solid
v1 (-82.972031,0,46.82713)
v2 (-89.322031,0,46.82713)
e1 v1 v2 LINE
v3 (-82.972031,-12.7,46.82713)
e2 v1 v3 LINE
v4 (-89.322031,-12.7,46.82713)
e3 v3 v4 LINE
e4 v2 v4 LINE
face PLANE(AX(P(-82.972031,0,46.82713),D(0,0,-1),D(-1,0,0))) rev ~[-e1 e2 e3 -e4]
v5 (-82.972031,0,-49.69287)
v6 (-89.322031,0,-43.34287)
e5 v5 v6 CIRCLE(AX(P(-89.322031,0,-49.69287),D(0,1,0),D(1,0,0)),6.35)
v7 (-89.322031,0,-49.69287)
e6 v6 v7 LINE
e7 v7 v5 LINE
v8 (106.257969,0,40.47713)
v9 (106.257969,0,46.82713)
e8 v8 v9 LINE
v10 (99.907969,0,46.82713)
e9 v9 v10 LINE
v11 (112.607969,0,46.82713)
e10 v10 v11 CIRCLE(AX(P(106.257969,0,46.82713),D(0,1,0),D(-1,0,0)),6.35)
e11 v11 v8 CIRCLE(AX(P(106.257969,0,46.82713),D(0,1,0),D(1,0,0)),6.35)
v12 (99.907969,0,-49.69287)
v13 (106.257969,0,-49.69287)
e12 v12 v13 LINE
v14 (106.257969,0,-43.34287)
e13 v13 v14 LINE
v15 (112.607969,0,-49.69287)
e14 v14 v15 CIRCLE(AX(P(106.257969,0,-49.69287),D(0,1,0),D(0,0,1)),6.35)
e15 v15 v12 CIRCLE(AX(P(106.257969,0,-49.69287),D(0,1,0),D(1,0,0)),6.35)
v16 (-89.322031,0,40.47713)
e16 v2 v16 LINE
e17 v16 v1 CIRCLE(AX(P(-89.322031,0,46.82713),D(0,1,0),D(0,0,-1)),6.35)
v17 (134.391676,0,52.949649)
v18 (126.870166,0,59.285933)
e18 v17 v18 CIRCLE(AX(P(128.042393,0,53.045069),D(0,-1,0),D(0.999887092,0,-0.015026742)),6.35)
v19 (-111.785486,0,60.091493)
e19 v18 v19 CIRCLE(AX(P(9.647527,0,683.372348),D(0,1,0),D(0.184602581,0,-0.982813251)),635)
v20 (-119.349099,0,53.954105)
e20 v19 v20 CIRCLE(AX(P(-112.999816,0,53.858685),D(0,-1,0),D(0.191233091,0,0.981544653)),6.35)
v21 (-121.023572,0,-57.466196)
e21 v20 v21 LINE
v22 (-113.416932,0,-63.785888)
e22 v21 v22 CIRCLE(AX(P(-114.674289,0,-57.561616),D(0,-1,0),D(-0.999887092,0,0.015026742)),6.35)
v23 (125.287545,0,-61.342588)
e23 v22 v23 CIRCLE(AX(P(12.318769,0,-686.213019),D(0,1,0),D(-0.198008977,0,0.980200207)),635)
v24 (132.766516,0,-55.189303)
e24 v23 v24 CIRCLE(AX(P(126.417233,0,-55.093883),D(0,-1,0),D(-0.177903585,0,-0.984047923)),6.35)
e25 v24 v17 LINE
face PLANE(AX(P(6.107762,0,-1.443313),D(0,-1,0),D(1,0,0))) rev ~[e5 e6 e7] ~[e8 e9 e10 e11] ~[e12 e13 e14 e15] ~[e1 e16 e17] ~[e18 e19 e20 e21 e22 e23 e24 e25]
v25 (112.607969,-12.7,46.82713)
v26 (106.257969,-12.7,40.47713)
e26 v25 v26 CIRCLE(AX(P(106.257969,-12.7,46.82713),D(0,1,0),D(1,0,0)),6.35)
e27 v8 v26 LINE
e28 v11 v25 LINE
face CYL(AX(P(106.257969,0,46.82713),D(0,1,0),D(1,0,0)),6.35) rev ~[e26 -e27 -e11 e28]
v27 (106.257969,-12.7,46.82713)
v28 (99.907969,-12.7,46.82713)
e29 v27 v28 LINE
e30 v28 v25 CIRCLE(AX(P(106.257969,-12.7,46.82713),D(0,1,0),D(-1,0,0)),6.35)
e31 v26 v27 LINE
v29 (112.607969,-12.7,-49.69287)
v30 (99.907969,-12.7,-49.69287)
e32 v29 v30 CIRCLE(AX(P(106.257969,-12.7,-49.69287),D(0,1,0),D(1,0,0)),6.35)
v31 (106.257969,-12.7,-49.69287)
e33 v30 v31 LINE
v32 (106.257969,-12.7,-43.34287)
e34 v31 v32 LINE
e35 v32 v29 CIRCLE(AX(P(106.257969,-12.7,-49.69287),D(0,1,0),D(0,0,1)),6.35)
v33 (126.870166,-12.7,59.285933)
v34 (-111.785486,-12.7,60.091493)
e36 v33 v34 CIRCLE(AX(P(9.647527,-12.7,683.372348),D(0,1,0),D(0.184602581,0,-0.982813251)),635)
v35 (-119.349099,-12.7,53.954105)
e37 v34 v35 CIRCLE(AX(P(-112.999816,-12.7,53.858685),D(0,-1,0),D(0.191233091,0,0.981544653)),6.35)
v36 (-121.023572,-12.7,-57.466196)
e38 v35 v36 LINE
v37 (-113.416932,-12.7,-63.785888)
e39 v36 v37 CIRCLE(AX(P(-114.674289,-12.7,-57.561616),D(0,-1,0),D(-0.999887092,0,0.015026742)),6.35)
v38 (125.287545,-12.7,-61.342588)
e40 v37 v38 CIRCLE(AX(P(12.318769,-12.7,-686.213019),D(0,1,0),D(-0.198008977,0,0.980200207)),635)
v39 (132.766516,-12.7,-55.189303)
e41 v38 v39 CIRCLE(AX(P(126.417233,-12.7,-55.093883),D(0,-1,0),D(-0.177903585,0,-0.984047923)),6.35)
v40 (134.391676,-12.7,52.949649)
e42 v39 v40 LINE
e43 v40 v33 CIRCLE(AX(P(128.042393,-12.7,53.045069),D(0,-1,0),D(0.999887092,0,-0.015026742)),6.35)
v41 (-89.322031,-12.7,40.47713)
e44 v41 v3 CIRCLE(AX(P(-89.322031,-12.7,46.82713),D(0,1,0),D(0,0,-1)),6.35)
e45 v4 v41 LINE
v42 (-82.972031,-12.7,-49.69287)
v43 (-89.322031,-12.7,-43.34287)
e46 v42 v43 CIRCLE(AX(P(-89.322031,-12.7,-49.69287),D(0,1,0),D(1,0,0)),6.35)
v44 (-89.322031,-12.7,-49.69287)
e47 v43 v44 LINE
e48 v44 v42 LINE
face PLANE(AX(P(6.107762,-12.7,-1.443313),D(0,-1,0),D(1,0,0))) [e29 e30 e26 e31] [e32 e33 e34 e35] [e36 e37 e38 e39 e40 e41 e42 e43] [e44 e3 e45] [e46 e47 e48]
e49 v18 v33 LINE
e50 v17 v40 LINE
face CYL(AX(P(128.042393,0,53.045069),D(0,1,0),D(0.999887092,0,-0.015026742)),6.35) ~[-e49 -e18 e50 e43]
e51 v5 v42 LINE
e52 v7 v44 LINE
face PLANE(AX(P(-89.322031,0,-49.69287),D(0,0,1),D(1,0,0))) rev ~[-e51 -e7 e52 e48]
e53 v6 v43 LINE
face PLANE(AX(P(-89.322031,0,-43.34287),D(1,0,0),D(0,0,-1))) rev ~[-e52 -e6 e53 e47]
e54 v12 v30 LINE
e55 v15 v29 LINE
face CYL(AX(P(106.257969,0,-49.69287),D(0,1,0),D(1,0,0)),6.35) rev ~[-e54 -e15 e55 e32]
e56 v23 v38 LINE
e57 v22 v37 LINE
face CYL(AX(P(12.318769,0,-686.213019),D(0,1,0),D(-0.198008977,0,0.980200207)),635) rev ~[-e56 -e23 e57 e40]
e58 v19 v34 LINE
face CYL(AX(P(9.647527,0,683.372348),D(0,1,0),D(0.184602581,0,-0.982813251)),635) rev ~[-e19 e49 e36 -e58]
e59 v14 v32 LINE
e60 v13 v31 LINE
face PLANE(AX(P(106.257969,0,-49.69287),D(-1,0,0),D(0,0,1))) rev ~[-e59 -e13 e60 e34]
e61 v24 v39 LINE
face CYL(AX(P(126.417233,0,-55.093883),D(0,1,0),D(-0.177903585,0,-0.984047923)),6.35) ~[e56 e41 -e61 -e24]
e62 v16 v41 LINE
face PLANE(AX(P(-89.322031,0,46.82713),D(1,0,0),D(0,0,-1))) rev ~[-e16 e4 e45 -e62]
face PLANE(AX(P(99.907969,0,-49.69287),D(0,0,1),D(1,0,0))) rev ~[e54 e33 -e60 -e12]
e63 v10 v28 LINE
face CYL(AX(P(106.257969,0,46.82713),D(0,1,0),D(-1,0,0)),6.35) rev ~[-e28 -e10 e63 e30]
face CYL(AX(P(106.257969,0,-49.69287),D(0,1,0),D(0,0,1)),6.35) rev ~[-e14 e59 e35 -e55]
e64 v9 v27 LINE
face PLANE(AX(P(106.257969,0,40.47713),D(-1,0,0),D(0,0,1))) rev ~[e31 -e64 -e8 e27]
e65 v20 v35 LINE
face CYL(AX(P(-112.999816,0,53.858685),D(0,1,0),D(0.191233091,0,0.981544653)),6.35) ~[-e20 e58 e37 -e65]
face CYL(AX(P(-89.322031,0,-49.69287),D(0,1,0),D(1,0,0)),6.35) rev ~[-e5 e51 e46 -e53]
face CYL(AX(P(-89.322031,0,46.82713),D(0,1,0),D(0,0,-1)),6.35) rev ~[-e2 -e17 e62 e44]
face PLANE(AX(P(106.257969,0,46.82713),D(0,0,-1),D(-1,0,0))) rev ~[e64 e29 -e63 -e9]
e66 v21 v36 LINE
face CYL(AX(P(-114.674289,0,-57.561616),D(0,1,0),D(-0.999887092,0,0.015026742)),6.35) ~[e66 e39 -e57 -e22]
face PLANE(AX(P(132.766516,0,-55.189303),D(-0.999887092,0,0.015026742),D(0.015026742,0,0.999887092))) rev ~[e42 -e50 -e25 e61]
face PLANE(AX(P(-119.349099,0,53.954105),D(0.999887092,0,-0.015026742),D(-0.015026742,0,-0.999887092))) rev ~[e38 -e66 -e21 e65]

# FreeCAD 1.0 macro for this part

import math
import FreeCAD as App
import Part
import Sketcher
Q = App.Units.Quantity

doc = App.newDocument("Part")
body = doc.addObject("PartDesign::Body", "Body")

# Sketch on XZ plane
sketch1 = body.newObject("Sketcher::SketchObject", "Sketch")
sketch1.AttachmentSupport = (doc.getObject("XZ_Plane"), [""])
sketch1.MapMode = "FlatFace"
sketch1.addGeometry(Part.ArcOfCircle(Part.Circle(App.Vector(-112.999816, 53.858685, 0), App.Vector(0, 0, 1), 6.35), math.radians(78.975245), math.radians(179.138999)), False)
sketch1.addGeometry(Part.LineSegment(App.Vector(-119.349099, 53.954105, 0), App.Vector(-121.023572, -57.466196, 0)), False)
sketch1.addGeometry(Part.ArcOfCircle(Part.Circle(App.Vector(-114.674289, -57.561616, 0), App.Vector(0, 0, 1), 6.35), math.radians(179.138999), math.radians(281.420554)), False)
sketch1.addGeometry(Part.ArcOfCircle(Part.Circle(App.Vector(12.318769, -686.213019, 0), App.Vector(0, 0, 1), 635), math.radians(79.752327), math.radians(101.420554)), False)
sketch1.addGeometry(Part.ArcOfCircle(Part.Circle(App.Vector(126.417233, -55.093883, 0), App.Vector(0, 0, 1), 6.35), math.radians(-100.247673), math.radians(-0.861001)), False)
sketch1.addGeometry(Part.LineSegment(App.Vector(132.766516, -55.189303, 0), App.Vector(134.391676, 52.949649, 0)), False)
sketch1.addGeometry(Part.ArcOfCircle(Part.Circle(App.Vector(128.042393, 53.045069, 0), App.Vector(0, 0, 1), 6.35), math.radians(-0.861001), math.radians(100.637963)), False)
sketch1.addGeometry(Part.ArcOfCircle(Part.Circle(App.Vector(9.647527, 683.372348, 0), App.Vector(0, 0, 1), 635), math.radians(-101.024755), math.radians(-79.362037)), False)
sketch1.addGeometry(Part.ArcOfCircle(Part.Circle(App.Vector(-89.322031, -49.69287, 0), App.Vector(0, 0, 1), 6.35), math.radians(90), math.radians(360)), False)
sketch1.addGeometry(Part.LineSegment(App.Vector(-89.322031, -43.34287, 0), App.Vector(-89.322031, -49.69287, 0)), False)
sketch1.addGeometry(Part.LineSegment(App.Vector(-89.322031, -49.69287, 0), App.Vector(-82.972031, -49.69287, 0)), False)
sketch1.addGeometry(Part.ArcOfCircle(Part.Circle(App.Vector(106.257969, -49.69287, 0), App.Vector(0, 0, 1), 6.35), math.radians(180), math.radians(360)), False)
sketch1.addGeometry(Part.LineSegment(App.Vector(99.907969, -49.69287, 0), App.Vector(106.257969, -49.69287, 0)), False)
sketch1.addGeometry(Part.LineSegment(App.Vector(106.257969, -49.69287, 0), App.Vector(106.257969, -43.34287, 0)), False)
sketch1.addGeometry(Part.ArcOfCircle(Part.Circle(App.Vector(106.257969, -49.69287, 0), App.Vector(0, 0, 1), 6.35), math.radians(0), math.radians(90)), False)
sketch1.addGeometry(Part.ArcOfCircle(Part.Circle(App.Vector(106.257969, 46.82713, 0), App.Vector(0, 0, 1), 6.35), math.radians(-90), math.radians(0)), False)
sketch1.addGeometry(Part.LineSegment(App.Vector(106.257969, 40.47713, 0), App.Vector(106.257969, 46.82713, 0)), False)
sketch1.addGeometry(Part.LineSegment(App.Vector(106.257969, 46.82713, 0), App.Vector(99.907969, 46.82713, 0)), False)
sketch1.addGeometry(Part.ArcOfCircle(Part.Circle(App.Vector(106.257969, 46.82713, 0), App.Vector(0, 0, 1), 6.35), math.radians(0), math.radians(180)), False)
sketch1.addGeometry(Part.ArcOfCircle(Part.Circle(App.Vector(-89.322031, 46.82713, 0), App.Vector(0, 0, 1), 6.35), math.radians(0), math.radians(270)), False)
sketch1.addGeometry(Part.LineSegment(App.Vector(-82.972031, 46.82713, 0), App.Vector(-89.322031, 46.82713, 0)), False)
sketch1.addGeometry(Part.LineSegment(App.Vector(-89.322031, 46.82713, 0), App.Vector(-89.322031, 40.47713, 0)), False)
sketch1.addConstraint(Sketcher.Constraint("Tangent", 0, 2, 1, 1))
sketch1.addConstraint(Sketcher.Constraint("Tangent", 1, 2, 2, 1))
sketch1.addConstraint(Sketcher.Constraint("Tangent", 2, 2, 3, 2))
sketch1.addConstraint(Sketcher.Constraint("Tangent", 3, 1, 4, 1))
sketch1.addConstraint(Sketcher.Constraint("Tangent", 4, 2, 5, 1))
sketch1.addConstraint(Sketcher.Constraint("Tangent", 5, 2, 6, 1))
sketch1.addConstraint(Sketcher.Constraint("Tangent", 6, 2, 7, 2))
sketch1.addConstraint(Sketcher.Constraint("Tangent", 7, 1, 0, 1))
sketch1.addConstraint(Sketcher.Constraint("Coincident", 8, 1, 9, 1))
sketch1.addConstraint(Sketcher.Constraint("Coincident", 9, 2, 10, 1))
sketch1.addConstraint(Sketcher.Constraint("Coincident", 10, 2, 8, 2))
sketch1.addConstraint(Sketcher.Constraint("Coincident", 11, 1, 12, 1))
sketch1.addConstraint(Sketcher.Constraint("Coincident", 12, 2, 13, 1))
sketch1.addConstraint(Sketcher.Constraint("Coincident", 13, 2, 14, 2))
sketch1.addConstraint(Sketcher.Constraint("Tangent", 14, 1, 11, 2))
sketch1.addConstraint(Sketcher.Constraint("Coincident", 15, 1, 16, 1))
sketch1.addConstraint(Sketcher.Constraint("Coincident", 16, 2, 17, 1))
sketch1.addConstraint(Sketcher.Constraint("Coincident", 17, 2, 18, 2))
sketch1.addConstraint(Sketcher.Constraint("Tangent", 18, 1, 15, 2))
sketch1.addConstraint(Sketcher.Constraint("Coincident", 19, 1, 20, 1))
sketch1.addConstraint(Sketcher.Constraint("Coincident", 20, 2, 21, 1))
sketch1.addConstraint(Sketcher.Constraint("Coincident", 21, 2, 19, 2))
sketch1.addConstraint(Sketcher.Constraint("Vertical", 9))
sketch1.addConstraint(Sketcher.Constraint("Horizontal", 10))
sketch1.addConstraint(Sketcher.Constraint("Horizontal", 12))
sketch1.addConstraint(Sketcher.Constraint("Vertical", 13))
sketch1.addConstraint(Sketcher.Constraint("Vertical", 16))
sketch1.addConstraint(Sketcher.Constraint("Horizontal", 17))
sketch1.addConstraint(Sketcher.Constraint("Horizontal", 20))
sketch1.addConstraint(Sketcher.Constraint("Vertical", 21))
sketch1.addConstraint(Sketcher.Constraint("Coincident", 9, 2, 8, 3))
sketch1.addConstraint(Sketcher.Constraint("Coincident", 12, 2, 11, 3))
sketch1.addConstraint(Sketcher.Constraint("Coincident", 16, 2, 15, 3))
sketch1.addConstraint(Sketcher.Constraint("Coincident", 20, 2, 19, 3))
sketch1.addConstraint(Sketcher.Constraint("Equal", 0, 2))
sketch1.addConstraint(Sketcher.Constraint("Equal", 2, 4))
sketch1.addConstraint(Sketcher.Constraint("Equal", 4, 6))
sketch1.addConstraint(Sketcher.Constraint("Equal", 3, 7))
sketch1.addConstraint(Sketcher.Constraint("Equal", 6, 8))
sketch1.addConstraint(Sketcher.Constraint("Equal", 8, 11))
sketch1.addConstraint(Sketcher.Constraint("Equal", 11, 14))
sketch1.addConstraint(Sketcher.Constraint("Equal", 14, 15))
sketch1.addConstraint(Sketcher.Constraint("Equal", 15, 18))
sketch1.addConstraint(Sketcher.Constraint("Equal", 18, 19))
sketch1.addConstraint(Sketcher.Constraint("Parallel", 1, 5))
sketch1.addConstraint(Sketcher.Constraint("Horizontal", 8, 3, 11, 3))
sketch1.addConstraint(Sketcher.Constraint("Horizontal", 18, 3, 19, 3))
sketch1.addConstraint(Sketcher.Constraint("Horizontal", 12, 2, 14, 1))
sketch1.addConstraint(Sketcher.Constraint("Horizontal", 17, 2, 18, 1))
sketch1.addConstraint(Sketcher.Constraint("Vertical", 14, 3, 15, 3))
sketch1.addConstraint(Sketcher.Constraint("Vertical", 8, 3, 19, 3))
sketch1.addConstraint(Sketcher.Constraint("Radius", 3, Q("25 in")))
sketch1.addConstraint(Sketcher.Constraint("Radius", 0, Q("0.25 in")))
sketch1.addConstraint(Sketcher.Constraint("DistanceX", 8, 3, 11, 3, Q("7.7 in")))
sketch1.addConstraint(Sketcher.Constraint("DistanceY", 11, 3, 15, 3, Q("3.8 in")))
sketch1.addConstraint(Sketcher.Constraint("DistanceX", 0, 2, -1, 1, Q("119.349099 mm")))
sketch1.addConstraint(Sketcher.Constraint("DistanceY", 2, 3, 0, 3, Q("111.420301 mm")))
sketch1.addConstraint(Sketcher.Constraint("DistanceX", 8, 3, 3, 3, Q("101.6408 mm")))
sketch1.addConstraint(Sketcher.Constraint("DistanceX", 2, 2, 8, 3, Q("24.094901 mm")))
sketch1.addConstraint(Sketcher.Constraint("DistanceX", 2, 3, -1, 1, Q("114.674289 mm")))
sketch1.addConstraint(Sketcher.Constraint("DistanceY", 3, 3, -1, 1, Q("686.213019 mm")))
sketch1.addConstraint(Sketcher.Constraint("DistanceY", -1, 1, 6, 3, Q("53.045069 mm")))
sketch1.addConstraint(Sketcher.Constraint("DistanceY", 8, 3, -1, 1, Q("49.69287 mm")))
sketch1.addConstraint(Sketcher.Constraint("DistanceX", 2, 3, 4, 3, Q("241.091522 mm")))
pad1 = body.newObject("PartDesign::Pad", "Pad")
pad1.Profile = sketch1
pad1.Length = Q("0.5 in")

doc.recompute()
